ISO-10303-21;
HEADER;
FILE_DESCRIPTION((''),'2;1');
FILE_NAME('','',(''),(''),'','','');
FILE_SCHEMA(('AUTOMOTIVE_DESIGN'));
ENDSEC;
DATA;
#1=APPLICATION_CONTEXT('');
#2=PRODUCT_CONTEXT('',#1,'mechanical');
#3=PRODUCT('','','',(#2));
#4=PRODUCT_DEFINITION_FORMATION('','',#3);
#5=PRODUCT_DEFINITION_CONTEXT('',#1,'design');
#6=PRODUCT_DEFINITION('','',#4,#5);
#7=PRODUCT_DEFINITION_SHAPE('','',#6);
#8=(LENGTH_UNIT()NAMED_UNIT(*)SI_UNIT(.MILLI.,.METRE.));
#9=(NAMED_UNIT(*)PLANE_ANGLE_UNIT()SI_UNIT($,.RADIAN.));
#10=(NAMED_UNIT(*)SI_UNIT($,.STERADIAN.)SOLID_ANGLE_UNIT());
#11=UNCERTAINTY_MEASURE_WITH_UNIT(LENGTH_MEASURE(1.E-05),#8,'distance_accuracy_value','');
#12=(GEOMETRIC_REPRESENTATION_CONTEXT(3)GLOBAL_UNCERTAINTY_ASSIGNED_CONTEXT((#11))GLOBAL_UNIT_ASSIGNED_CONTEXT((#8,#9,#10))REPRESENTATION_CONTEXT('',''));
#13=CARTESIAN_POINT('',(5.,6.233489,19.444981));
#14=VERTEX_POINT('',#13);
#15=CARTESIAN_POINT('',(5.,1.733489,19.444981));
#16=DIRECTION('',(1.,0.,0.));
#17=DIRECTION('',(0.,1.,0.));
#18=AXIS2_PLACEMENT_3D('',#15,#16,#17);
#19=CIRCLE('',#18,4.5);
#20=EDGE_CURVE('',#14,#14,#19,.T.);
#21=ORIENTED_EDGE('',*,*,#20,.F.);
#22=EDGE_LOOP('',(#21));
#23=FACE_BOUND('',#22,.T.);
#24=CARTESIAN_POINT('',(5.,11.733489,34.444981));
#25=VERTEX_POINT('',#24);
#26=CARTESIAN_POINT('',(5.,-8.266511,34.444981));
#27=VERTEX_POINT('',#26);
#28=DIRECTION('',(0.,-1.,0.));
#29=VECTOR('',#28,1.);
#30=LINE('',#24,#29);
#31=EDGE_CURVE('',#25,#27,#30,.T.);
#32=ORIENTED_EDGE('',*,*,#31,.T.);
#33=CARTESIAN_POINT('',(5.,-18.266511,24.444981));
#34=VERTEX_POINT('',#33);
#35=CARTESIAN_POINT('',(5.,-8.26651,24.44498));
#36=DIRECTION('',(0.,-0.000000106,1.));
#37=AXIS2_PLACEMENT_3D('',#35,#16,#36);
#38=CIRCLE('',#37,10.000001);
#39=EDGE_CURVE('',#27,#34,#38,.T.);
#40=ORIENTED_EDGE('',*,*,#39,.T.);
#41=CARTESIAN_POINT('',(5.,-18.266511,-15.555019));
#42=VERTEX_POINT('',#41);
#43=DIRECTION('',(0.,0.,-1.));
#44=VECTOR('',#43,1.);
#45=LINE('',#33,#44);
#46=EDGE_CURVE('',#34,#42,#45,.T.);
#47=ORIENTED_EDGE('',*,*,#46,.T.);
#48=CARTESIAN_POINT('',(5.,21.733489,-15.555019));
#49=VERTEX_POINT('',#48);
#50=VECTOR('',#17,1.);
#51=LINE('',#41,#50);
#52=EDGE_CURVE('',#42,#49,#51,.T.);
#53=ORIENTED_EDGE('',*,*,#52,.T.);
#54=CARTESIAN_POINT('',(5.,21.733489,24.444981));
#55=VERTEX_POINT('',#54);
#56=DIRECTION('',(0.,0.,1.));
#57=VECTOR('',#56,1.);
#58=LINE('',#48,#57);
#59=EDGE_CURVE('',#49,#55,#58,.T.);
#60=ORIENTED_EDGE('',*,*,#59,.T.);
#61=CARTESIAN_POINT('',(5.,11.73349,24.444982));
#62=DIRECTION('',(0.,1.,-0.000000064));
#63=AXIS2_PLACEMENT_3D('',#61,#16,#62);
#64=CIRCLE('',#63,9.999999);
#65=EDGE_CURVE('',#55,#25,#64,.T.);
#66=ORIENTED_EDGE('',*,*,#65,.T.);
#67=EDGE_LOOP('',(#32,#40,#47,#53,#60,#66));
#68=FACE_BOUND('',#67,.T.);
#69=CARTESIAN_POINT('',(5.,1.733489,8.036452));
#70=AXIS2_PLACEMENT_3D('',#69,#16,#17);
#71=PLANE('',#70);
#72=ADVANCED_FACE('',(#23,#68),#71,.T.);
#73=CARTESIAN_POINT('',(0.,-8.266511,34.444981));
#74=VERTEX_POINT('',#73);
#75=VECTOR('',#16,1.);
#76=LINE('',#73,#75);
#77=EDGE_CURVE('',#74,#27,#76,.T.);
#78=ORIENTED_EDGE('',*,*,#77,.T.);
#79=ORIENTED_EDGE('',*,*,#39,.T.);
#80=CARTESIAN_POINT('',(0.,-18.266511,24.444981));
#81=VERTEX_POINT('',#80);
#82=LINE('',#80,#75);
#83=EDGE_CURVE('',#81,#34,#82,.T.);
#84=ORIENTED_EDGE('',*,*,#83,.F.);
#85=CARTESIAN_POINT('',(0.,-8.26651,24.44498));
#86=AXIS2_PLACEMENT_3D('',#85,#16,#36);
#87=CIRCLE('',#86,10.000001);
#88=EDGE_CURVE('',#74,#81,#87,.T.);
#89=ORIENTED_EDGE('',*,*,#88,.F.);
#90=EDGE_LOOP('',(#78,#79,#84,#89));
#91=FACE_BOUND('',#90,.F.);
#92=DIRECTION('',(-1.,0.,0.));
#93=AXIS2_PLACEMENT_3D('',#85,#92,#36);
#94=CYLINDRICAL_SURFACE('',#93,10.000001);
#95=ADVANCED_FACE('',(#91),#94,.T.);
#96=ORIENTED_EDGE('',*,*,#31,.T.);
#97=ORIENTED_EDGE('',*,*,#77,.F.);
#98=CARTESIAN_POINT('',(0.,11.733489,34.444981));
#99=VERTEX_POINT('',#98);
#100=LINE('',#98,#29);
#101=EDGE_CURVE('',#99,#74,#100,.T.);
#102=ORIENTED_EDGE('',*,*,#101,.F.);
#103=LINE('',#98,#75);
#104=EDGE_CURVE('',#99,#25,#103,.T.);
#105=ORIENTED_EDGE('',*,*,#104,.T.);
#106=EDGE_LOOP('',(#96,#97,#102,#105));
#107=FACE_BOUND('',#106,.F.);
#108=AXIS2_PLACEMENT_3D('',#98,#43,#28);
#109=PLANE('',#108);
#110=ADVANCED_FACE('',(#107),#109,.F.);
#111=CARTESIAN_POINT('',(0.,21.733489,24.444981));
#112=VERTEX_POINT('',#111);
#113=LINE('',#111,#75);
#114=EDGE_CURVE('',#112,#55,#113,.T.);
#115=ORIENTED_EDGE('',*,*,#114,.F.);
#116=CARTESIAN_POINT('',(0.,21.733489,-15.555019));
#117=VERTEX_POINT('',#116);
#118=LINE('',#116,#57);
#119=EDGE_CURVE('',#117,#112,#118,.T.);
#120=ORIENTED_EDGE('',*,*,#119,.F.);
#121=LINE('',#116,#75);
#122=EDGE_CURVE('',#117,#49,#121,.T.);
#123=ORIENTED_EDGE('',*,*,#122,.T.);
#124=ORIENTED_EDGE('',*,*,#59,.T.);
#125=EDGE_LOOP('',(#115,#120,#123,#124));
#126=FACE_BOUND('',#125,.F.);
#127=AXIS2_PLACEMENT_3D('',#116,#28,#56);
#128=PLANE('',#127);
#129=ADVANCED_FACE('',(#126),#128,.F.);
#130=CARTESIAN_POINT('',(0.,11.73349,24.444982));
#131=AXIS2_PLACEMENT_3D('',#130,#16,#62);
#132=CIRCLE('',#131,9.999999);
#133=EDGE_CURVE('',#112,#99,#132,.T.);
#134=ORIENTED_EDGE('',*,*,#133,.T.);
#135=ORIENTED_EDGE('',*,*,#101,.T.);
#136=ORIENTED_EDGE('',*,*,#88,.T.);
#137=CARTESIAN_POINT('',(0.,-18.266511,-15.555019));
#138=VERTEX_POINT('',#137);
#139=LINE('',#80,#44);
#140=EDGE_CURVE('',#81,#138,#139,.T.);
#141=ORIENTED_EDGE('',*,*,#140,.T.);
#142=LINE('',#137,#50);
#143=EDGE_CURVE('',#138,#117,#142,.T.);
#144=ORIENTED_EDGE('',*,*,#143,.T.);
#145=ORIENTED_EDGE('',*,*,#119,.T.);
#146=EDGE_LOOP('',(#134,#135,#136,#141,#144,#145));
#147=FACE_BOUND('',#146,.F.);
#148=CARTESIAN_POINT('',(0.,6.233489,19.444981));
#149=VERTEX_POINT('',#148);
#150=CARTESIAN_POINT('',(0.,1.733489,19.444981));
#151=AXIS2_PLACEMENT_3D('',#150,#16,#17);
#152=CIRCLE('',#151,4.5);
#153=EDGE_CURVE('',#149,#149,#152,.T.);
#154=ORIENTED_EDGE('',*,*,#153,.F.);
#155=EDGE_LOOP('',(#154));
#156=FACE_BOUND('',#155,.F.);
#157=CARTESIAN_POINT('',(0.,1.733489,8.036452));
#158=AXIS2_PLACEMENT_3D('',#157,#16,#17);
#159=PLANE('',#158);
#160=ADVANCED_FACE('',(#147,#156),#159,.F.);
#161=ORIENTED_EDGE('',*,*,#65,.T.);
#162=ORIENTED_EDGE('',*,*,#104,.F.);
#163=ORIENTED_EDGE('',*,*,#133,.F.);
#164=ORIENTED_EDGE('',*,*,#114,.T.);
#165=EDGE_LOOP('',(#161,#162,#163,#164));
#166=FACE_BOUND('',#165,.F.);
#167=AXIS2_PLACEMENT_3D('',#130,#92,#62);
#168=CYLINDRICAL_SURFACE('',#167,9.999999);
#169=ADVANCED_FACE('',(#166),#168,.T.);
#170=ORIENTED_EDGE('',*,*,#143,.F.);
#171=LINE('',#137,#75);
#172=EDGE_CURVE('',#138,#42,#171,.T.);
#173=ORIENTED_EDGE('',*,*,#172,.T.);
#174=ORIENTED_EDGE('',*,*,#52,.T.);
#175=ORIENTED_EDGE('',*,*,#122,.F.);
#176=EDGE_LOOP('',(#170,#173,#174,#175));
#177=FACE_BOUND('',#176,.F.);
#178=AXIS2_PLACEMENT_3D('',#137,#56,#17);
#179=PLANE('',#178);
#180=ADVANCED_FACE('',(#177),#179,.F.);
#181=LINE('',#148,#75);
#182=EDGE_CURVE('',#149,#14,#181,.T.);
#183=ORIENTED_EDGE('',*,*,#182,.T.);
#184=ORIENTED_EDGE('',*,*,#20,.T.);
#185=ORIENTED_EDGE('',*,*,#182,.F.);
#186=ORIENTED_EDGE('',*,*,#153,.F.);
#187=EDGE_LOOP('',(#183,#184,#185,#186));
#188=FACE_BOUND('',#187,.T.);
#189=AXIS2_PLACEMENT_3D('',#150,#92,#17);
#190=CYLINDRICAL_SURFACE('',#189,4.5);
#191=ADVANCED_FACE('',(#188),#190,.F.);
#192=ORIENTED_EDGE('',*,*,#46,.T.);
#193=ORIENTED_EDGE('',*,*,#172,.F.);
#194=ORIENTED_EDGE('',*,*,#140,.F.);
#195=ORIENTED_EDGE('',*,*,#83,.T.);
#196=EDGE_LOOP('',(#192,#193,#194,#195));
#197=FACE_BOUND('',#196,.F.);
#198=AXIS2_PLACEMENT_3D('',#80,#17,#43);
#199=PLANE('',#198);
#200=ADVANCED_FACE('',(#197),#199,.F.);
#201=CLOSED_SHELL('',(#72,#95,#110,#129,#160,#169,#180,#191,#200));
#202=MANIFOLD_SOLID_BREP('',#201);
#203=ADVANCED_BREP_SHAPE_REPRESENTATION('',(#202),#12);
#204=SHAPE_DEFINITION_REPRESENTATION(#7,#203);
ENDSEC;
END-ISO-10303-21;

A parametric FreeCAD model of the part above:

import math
import FreeCAD as App
import Part
import Sketcher

doc = App.newDocument("Part")
params = doc.addObject("Spreadsheet::Sheet", "Params")
for row, (alias, value) in enumerate([
    ("sketch1_diameter", "9 mm"),
    ("sketch1_radius", "10.000001 mm"),
    ("sketch1_width", "20 mm"),
    ("pad1_length", "5 mm"),
], start=1):
    params.set(f"A{row}", alias)
    params.set(f"B{row}", "=" + value)
    params.setAlias(f"B{row}", alias)

body = doc.addObject("PartDesign::Body", "Body")

# Sketch on YZ plane
sketch1 = body.newObject("Sketcher::SketchObject", "Sketch")
sketch1.AttachmentSupport = (doc.getObject("YZ_Plane"), [""])
sketch1.MapMode = "FlatFace"
sketch1.addGeometry([
    Part.LineSegment(App.Vector(11.7, 34.4, 0), App.Vector(-8.3, 34.4, 0)),  # 0
    Part.ArcOfCircle(Part.Circle(App.Vector(-8.3, 24.4, 0), App.Vector(0, 0, 1), 10), math.radians(90), math.radians(180)),  # 1
    Part.LineSegment(App.Vector(-18.3, 24.4, 0), App.Vector(-18.3, -15.6, 0)),  # 2
    Part.LineSegment(App.Vector(-18.3, -15.6, 0), App.Vector(21.7, -15.6, 0)),  # 3
    Part.LineSegment(App.Vector(21.7, -15.6, 0), App.Vector(21.7, 24.4, 0)),  # 4
    Part.ArcOfCircle(Part.Circle(App.Vector(11.7, 24.4, 0), App.Vector(0, 0, 1), 10), math.radians(0), math.radians(90)),  # 5
    Part.Circle(App.Vector(1.7, 19.4, 0), App.Vector(0, 0, 1), 4.5),  # 6
], False)
sketch1.addConstraint([
    Sketcher.Constraint("Tangent", 0, 2, 1, 1),
    Sketcher.Constraint("Tangent", 1, 2, 2, 1),
    Sketcher.Constraint("Coincident", 2, 2, 3, 1),
    Sketcher.Constraint("Coincident", 3, 2, 4, 1),
    Sketcher.Constraint("Tangent", 4, 2, 5, 1),
    Sketcher.Constraint("Tangent", 5, 2, 0, 1),
    Sketcher.Constraint("Horizontal", 0),
    Sketcher.Constraint("Vertical", 2),
    Sketcher.Constraint("Horizontal", 3),
    Sketcher.Constraint("Vertical", 4),
    Sketcher.Constraint("Equal", 1, 5),
    Sketcher.Constraint("Equal", 3, 2),
    Sketcher.Constraint("Diameter", 6, 9.0),
    Sketcher.Constraint("Radius", 1, 10.000001),
    Sketcher.Constraint("DistanceX", 0, 2, 0, 1, 20.0),
    Sketcher.Constraint("DistanceX", 1, 3, 6, 3, 9.999999),
    Sketcher.Constraint("DistanceY", 6, 3, 1, 3, 4.999999),
    Sketcher.Constraint("DistanceX", 1, 3, -1, 1, 8.26651),
    Sketcher.Constraint("DistanceY", -1, 1, 1, 3, 24.44498),
])
sketch1.setExpression("Constraints[12]", "Params.sketch1_diameter")
sketch1.setExpression("Constraints[13]", "Params.sketch1_radius")
sketch1.setExpression("Constraints[14]", "Params.sketch1_width")
pad1 = body.newObject("PartDesign::Pad", "Pad")
pad1.Profile = sketch1
pad1.setExpression("Length", "Params.pad1_length")

doc.recompute()
